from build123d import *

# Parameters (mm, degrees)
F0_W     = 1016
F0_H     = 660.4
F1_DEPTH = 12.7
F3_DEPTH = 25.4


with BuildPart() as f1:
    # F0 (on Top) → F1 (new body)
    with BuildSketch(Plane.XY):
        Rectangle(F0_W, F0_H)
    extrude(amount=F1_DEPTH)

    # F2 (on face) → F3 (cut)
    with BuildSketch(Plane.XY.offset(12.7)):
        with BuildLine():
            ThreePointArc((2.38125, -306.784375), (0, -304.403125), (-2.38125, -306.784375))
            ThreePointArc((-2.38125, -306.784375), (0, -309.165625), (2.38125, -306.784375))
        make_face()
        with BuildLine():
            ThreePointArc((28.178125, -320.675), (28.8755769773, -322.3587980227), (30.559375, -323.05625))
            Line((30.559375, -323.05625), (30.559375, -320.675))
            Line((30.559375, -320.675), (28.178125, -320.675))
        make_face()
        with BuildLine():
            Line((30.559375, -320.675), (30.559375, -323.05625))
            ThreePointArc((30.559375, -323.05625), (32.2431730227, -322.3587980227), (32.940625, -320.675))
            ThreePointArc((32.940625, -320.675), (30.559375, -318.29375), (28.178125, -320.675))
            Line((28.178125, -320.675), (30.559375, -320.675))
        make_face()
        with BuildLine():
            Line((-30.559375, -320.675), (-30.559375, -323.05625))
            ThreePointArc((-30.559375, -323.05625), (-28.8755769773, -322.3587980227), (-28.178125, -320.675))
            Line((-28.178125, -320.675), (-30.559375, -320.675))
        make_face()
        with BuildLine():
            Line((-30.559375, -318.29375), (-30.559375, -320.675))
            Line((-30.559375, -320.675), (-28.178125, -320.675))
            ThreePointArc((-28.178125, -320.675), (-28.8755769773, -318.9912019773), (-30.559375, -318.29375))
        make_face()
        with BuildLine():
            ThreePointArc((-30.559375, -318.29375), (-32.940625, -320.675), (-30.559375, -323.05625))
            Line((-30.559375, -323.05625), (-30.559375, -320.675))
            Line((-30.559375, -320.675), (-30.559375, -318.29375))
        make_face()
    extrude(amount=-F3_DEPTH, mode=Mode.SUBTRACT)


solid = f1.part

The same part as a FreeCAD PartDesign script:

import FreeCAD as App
import Part
import Sketcher

V = App.Vector
Q = App.Units.Quantity


def add_polygon(sketch, points):
    """Adds a closed chain of lines whose ends are joined by coincident constraints."""
    first, n = sketch.GeometryCount, len(points)
    for a, b in zip(points, points[1:] + points[:1]):
        sketch.addGeometry(Part.LineSegment(App.Vector(*a, 0), App.Vector(*b, 0)), False)
    for i in range(n):
        sketch.addConstraint(Sketcher.Constraint("Coincident", first + i, 2, first + (i + 1) % n, 1))

doc = App.newDocument("Part")
params = doc.addObject("Spreadsheet::Sheet", "Params")
for row, (alias, value) in enumerate([
    ("sketch1_width", "40 in"),
    ("sketch1_height", "26 in"),
    ("pad1_length", "0.5 in"),
    ("sketch2_diameter", "0.1875 in"),
    ("pocket1_length", "1 in"),
], start=1):
    params.set(f"A{row}", alias)
    params.set(f"B{row}", "=" + value)
    params.setAlias(f"B{row}", alias)

body = doc.addObject("PartDesign::Body", "Body")

sketch1 = doc.addObject("Sketcher::SketchObject", "Sketch")
body.addObject(sketch1)
sketch1.AttachmentSupport = (doc.XY_Plane, [""])
sketch1.MapMode = "FlatFace"
add_polygon(sketch1, [(-508, 330), (-508, -330), (508, -330), (508, 330)])
sketch1.addConstraint(Sketcher.Constraint("Vertical", 0))
sketch1.addConstraint(Sketcher.Constraint("Horizontal", 1))
sketch1.addConstraint(Sketcher.Constraint("Vertical", 2))
sketch1.addConstraint(Sketcher.Constraint("Horizontal", 3))
sketch1.addConstraint(Sketcher.Constraint("Symmetric", 0, 2, 2, 2, -1, 1))
sketch1.addConstraint(Sketcher.Constraint("DistanceX", 1, 1, 1, 2, Q("40 in")))
sketch1.addConstraint(Sketcher.Constraint("DistanceY", 0, 2, 0, 1, Q("26 in")))
sketch1.setExpression("Constraints[9]", "Params.sketch1_width")
sketch1.setExpression("Constraints[10]", "Params.sketch1_height")
pad1 = doc.addObject("PartDesign::Pad", "Pad")
body.addObject(pad1)
pad1.Profile = sketch1
pad1.setExpression("Length", "Params.pad1_length")

sketch2 = doc.addObject("Sketcher::SketchObject", "Sketch001")
body.addObject(sketch2)
sketch2.AttachmentSupport = (doc.XY_Plane, [""])
sketch2.MapMode = "FlatFace"
sketch2.AttachmentOffset = App.Placement(V(0, 0, 0.5 * 25.4), App.Rotation())
sketch2.addGeometry(Part.Circle(V(0, -306.8, 0), V(0, 0, 1), 2.4), False)
sketch2.addGeometry(Part.Circle(V(30.6, -320.7, 0), V(0, 0, 1), 2.4), False)
sketch2.addGeometry(Part.Circle(V(-30.6, -320.7, 0), V(0, 0, 1), 2.4), False)
sketch2.addConstraint(Sketcher.Constraint("Equal", 0, 1))
sketch2.addConstraint(Sketcher.Constraint("Equal", 1, 2))
sketch2.addConstraint(Sketcher.Constraint("Symmetric", 1, 3, 2, 3, -2))
sketch2.addConstraint(Sketcher.Constraint("PointOnObject", 0, 3, -2))
sketch2.addConstraint(Sketcher.Constraint("Diameter", 0, Q("0.1875 in")))
sketch2.addConstraint(Sketcher.Constraint("DistanceY", 0, 3, -1, 1, Q("12.078125 in")))
sketch2.addConstraint(Sketcher.Constraint("DistanceX", -1, 1, 1, 3, Q("1.203125 in")))
sketch2.addConstraint(Sketcher.Constraint("DistanceY", 1, 3, -1, 1, Q("12.625 in")))
sketch2.setExpression("Constraints[4]", "Params.sketch2_diameter")
pocket1 = doc.addObject("PartDesign::Pocket", "Pocket")
body.addObject(pocket1)
pocket1.Profile = sketch2
pocket1.setExpression("Length", "Params.pocket1_length")

doc.recompute()
